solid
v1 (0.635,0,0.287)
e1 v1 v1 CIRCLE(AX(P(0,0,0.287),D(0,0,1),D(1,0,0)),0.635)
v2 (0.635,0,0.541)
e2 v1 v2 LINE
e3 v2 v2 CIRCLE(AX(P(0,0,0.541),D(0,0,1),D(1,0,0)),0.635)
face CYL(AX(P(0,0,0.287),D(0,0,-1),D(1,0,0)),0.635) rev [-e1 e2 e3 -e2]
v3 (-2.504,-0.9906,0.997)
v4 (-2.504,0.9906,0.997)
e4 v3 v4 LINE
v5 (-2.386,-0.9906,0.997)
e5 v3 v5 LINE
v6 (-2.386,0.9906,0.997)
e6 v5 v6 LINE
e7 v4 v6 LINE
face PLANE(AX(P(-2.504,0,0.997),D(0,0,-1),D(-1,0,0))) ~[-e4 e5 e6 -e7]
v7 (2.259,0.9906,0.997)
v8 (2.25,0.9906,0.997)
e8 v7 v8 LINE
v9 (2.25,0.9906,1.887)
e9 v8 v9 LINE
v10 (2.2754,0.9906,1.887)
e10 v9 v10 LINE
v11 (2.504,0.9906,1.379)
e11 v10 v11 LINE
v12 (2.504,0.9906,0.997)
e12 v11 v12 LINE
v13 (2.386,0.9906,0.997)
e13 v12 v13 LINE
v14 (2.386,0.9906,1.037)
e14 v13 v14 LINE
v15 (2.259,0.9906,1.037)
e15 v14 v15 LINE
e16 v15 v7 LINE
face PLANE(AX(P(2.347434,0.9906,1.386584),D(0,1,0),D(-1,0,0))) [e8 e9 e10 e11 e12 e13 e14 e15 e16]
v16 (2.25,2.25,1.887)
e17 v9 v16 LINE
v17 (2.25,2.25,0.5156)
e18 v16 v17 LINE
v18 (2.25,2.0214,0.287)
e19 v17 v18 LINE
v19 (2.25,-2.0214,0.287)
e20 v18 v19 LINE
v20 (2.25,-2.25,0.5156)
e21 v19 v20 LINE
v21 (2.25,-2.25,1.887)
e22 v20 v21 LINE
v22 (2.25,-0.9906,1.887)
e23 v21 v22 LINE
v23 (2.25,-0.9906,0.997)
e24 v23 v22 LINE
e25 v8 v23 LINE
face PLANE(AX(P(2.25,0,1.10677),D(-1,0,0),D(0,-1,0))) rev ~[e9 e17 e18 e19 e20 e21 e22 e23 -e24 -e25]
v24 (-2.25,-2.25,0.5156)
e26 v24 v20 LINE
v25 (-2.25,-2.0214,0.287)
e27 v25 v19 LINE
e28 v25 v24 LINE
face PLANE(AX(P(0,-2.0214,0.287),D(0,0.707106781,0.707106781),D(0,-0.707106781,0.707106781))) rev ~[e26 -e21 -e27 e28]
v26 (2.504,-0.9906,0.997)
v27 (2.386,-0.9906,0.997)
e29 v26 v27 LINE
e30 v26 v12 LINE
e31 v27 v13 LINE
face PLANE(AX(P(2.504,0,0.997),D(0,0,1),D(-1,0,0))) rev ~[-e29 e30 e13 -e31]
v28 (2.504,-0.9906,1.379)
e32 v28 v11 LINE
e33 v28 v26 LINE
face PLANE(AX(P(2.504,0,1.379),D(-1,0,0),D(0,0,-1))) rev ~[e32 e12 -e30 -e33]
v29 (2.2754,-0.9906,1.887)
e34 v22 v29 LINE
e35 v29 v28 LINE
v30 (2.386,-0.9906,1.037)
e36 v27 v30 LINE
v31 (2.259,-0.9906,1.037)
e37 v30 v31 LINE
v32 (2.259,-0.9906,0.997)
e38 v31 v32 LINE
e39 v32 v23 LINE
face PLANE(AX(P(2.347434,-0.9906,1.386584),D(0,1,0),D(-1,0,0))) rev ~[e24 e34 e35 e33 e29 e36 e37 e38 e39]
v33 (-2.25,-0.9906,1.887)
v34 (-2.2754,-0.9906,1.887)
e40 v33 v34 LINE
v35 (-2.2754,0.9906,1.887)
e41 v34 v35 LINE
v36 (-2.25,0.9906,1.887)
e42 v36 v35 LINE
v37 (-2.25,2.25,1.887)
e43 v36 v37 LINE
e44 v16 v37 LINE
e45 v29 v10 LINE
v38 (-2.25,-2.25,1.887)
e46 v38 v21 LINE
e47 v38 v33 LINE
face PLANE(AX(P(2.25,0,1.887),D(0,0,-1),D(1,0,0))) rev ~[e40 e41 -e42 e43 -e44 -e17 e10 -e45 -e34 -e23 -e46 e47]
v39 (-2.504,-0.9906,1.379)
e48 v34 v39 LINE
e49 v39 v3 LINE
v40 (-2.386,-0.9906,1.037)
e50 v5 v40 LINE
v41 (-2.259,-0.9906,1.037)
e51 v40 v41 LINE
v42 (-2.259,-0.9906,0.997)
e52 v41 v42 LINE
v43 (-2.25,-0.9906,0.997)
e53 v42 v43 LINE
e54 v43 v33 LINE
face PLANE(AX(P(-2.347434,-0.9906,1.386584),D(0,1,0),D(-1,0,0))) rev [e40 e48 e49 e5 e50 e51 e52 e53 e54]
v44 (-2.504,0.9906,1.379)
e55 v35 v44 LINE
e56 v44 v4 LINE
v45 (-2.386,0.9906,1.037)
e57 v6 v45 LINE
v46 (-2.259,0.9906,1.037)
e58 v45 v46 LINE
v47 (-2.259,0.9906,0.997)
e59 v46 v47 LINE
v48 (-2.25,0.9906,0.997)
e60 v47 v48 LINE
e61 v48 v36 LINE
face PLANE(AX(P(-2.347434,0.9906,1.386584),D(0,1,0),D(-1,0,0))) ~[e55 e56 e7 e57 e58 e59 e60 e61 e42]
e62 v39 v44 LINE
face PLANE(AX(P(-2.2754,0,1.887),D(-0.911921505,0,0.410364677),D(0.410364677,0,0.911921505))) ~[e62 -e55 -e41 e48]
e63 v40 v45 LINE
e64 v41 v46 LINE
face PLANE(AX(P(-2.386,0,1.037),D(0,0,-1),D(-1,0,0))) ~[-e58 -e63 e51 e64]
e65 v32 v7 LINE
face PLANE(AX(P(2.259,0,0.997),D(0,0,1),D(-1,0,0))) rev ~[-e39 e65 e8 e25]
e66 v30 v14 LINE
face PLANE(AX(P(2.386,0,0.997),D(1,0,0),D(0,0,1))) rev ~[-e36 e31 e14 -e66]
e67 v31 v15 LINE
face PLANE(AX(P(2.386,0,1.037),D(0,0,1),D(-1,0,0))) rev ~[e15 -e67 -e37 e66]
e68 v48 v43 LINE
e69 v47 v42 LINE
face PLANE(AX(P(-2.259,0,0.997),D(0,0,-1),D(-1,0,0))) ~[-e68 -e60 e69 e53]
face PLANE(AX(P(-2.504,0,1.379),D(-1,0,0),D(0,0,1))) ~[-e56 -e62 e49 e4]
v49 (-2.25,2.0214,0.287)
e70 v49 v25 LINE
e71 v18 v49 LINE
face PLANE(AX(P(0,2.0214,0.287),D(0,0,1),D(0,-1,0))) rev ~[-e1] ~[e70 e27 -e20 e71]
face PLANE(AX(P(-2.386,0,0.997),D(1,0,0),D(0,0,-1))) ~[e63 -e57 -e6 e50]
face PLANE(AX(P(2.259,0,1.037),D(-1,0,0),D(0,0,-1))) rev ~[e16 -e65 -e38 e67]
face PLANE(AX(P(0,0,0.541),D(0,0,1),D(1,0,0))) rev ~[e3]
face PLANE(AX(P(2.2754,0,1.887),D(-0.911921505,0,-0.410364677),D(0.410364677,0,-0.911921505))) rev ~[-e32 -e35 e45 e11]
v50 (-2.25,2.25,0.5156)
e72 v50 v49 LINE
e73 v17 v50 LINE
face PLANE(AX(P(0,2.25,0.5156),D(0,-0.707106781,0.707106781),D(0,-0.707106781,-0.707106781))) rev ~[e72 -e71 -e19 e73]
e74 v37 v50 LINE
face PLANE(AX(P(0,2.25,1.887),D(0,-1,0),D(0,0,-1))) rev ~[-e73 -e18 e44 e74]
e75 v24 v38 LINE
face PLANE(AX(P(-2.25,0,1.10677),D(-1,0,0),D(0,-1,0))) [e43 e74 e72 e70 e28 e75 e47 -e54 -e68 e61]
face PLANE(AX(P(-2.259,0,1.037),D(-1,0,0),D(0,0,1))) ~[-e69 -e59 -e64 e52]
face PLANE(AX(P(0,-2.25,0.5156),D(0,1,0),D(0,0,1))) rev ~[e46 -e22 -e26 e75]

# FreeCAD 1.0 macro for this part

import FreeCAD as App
import Part
import Sketcher

V = App.Vector
Q = App.Units.Quantity

doc = App.newDocument("Part")
body = doc.addObject("PartDesign::Body", "Body")

sketch1 = doc.addObject("Sketcher::SketchObject", "Sketch")
body.addObject(sketch1)
sketch1.AttachmentSupport = (doc.YZ_Plane, [""])
sketch1.MapMode = "FlatFace"
sketch1.addGeometry([
    Part.LineSegment(V(2.25, 1.6, 0), V(-2.25, 1.6, 0)),
    Part.LineSegment(V(-2.25, 1.6, 0), V(-2.25, 0.2286, 0)),
    Part.LineSegment(V(-2.25, 0.2286, 0), V(-2.0214, 0, 0)),
    Part.LineSegment(V(-2.0214, 0, 0), V(2.0214, 0, 0)),
    Part.LineSegment(V(2.0214, 0, 0), V(2.25, 0.2286, 0)),
    Part.LineSegment(V(2.25, 0.2286, 0), V(2.25, 1.6, 0)),
], False)
sketch1.addConstraint([
    Sketcher.Constraint("Coincident", 0, 2, 1, 1),
    Sketcher.Constraint("Coincident", 1, 2, 2, 1),
    Sketcher.Constraint("Coincident", 2, 2, 3, 1),
    Sketcher.Constraint("Coincident", 3, 2, 4, 1),
    Sketcher.Constraint("Coincident", 4, 2, 5, 1),
    Sketcher.Constraint("Coincident", 5, 2, 0, 1),
    Sketcher.Constraint("Horizontal", 0),
    Sketcher.Constraint("Vertical", 1),
    Sketcher.Constraint("Horizontal", 3),
    Sketcher.Constraint("Vertical", 5),
    Sketcher.Constraint("Symmetric", 2, 2, 3, 2, -1, 1),
    Sketcher.Constraint("Symmetric", 1, 2, 4, 2, -2),
    Sketcher.Constraint("Perpendicular", 2, 4),
    Sketcher.Constraint("DistanceY", -1, 1, 1, 2, Q("0.009 in")),
    Sketcher.Constraint("DistanceX", 0, 2, 0, 1, 4.5),
    Sketcher.Constraint("DistanceY", 1, 2, 1, 1, 1.3714),
])
pad1 = doc.addObject("PartDesign::Pad", "Pad")
body.addObject(pad1)
pad1.Profile = sketch1
pad1.Type = "TwoLengths"
pad1.Length = 2.25
pad1.Length2 = 2.25

sketch2 = doc.addObject("Sketcher::SketchObject", "Sketch001")
body.addObject(sketch2)
sketch2.AttachmentSupport = (doc.XZ_Plane, [""])
sketch2.MapMode = "FlatFace"
sketch2.addGeometry([
    Part.LineSegment(V(2.2754, 1.6, 0), V(2.25, 1.6, 0)),
    Part.LineSegment(V(2.25, 1.6, 0), V(2.25, 0.71, 0)),
    Part.LineSegment(V(2.25, 0.71, 0), V(2.259, 0.71, 0)),
    Part.LineSegment(V(2.259, 0.71, 0), V(2.259, 0.75, 0)),
    Part.LineSegment(V(2.259, 0.75, 0), V(2.386, 0.75, 0)),
    Part.LineSegment(V(2.386, 0.75, 0), V(2.386, 0.71, 0)),
    Part.LineSegment(V(2.386, 0.71, 0), V(2.504, 0.71, 0)),
    Part.LineSegment(V(2.504, 0.71, 0), V(2.504, 1.092, 0)),
    Part.LineSegment(V(2.504, 1.092, 0), V(2.2754, 1.6, 0)),
], False)
sketch2.addConstraint([
    Sketcher.Constraint("Coincident", 0, 2, 1, 1),
    Sketcher.Constraint("Coincident", 1, 2, 2, 1),
    Sketcher.Constraint("Coincident", 2, 2, 3, 1),
    Sketcher.Constraint("Coincident", 3, 2, 4, 1),
    Sketcher.Constraint("Coincident", 4, 2, 5, 1),
    Sketcher.Constraint("Coincident", 5, 2, 6, 1),
    Sketcher.Constraint("Coincident", 6, 2, 7, 1),
    Sketcher.Constraint("Coincident", 7, 2, 8, 1),
    Sketcher.Constraint("Coincident", 8, 2, 0, 1),
    Sketcher.Constraint("Horizontal", 0),
    Sketcher.Constraint("Vertical", 1),
    Sketcher.Constraint("Horizontal", 2),
    Sketcher.Constraint("Vertical", 3),
    Sketcher.Constraint("Horizontal", 4),
    Sketcher.Constraint("Vertical", 5),
    Sketcher.Constraint("Horizontal", 6),
    Sketcher.Constraint("Vertical", 7),
    Sketcher.Constraint("Horizontal", 2, 2, 5, 2),
    Sketcher.Constraint("DistanceX", 0, 2, 0, 1, Q("0.001 in")),
    Sketcher.Constraint("DistanceX", 4, 1, 4, 2, Q("0.005 in")),
    Sketcher.Constraint("DistanceX", 1, 2, 6, 2, Q("0.01 in")),
    Sketcher.Constraint("DistanceY", 7, 2, 8, 2, Q("0.02 in")),
    Sketcher.Constraint("DistanceX", 2, 1, 2, 2, 0.009),
    Sketcher.Constraint("DistanceY", 1, 2, 1, 1, 0.89),
    Sketcher.Constraint("DistanceY", 3, 1, 3, 2, 0.04),
    Sketcher.Constraint("DistanceX", -1, 1, 0, 2, 2.25),
    Sketcher.Constraint("DistanceY", -1, 1, 0, 2, 1.6),
])
pad2 = doc.addObject("PartDesign::Pad", "Pad001")
body.addObject(pad2)
pad2.Profile = sketch2
pad2.Type = "TwoLengths"
pad2.Length = Q("0.039 in")
pad2.Length2 = Q("0.039 in")
doc.recompute()

mirrored = doc.addObject("PartDesign::Mirrored", "Mirrored")
body.addObject(mirrored)
mirrored.Originals = [pad2]
mirrored.MirrorPlane = (doc.YZ_Plane, [""])
body.Tip = mirrored

sketch3 = doc.addObject("Sketcher::SketchObject", "Sketch002")
body.addObject(sketch3)
sketch3.AttachmentSupport = (doc.XY_Plane, [""])
sketch3.MapMode = "FlatFace"
sketch3.addGeometry(Part.Circle(V(0, 0, 0), V(0, 0, 1), 0.635), False)
sketch3.addConstraint([
    Sketcher.Constraint("Coincident", 0, 3, -1, 1),
    Sketcher.Constraint("Diameter", 0, Q("0.05 in")),
])
pocket1 = doc.addObject("PartDesign::Pocket", "Pocket")
body.addObject(pocket1)
pocket1.Profile = sketch3
pocket1.Length = Q("0.01 in")
pocket1.Reversed = True
body2 = doc.addObject("PartDesign::Body", "Body001")
doc.recompute()

body.Placement = App.Placement(V(0, 0, 0.287), App.Rotation(V(0, 0, 1), 0))
boolean = doc.addObject("PartDesign::Boolean", "Boolean")
body2.addObject(boolean)
boolean.Type = "Fuse"
boolean.addObjects([body])

doc.recompute()
